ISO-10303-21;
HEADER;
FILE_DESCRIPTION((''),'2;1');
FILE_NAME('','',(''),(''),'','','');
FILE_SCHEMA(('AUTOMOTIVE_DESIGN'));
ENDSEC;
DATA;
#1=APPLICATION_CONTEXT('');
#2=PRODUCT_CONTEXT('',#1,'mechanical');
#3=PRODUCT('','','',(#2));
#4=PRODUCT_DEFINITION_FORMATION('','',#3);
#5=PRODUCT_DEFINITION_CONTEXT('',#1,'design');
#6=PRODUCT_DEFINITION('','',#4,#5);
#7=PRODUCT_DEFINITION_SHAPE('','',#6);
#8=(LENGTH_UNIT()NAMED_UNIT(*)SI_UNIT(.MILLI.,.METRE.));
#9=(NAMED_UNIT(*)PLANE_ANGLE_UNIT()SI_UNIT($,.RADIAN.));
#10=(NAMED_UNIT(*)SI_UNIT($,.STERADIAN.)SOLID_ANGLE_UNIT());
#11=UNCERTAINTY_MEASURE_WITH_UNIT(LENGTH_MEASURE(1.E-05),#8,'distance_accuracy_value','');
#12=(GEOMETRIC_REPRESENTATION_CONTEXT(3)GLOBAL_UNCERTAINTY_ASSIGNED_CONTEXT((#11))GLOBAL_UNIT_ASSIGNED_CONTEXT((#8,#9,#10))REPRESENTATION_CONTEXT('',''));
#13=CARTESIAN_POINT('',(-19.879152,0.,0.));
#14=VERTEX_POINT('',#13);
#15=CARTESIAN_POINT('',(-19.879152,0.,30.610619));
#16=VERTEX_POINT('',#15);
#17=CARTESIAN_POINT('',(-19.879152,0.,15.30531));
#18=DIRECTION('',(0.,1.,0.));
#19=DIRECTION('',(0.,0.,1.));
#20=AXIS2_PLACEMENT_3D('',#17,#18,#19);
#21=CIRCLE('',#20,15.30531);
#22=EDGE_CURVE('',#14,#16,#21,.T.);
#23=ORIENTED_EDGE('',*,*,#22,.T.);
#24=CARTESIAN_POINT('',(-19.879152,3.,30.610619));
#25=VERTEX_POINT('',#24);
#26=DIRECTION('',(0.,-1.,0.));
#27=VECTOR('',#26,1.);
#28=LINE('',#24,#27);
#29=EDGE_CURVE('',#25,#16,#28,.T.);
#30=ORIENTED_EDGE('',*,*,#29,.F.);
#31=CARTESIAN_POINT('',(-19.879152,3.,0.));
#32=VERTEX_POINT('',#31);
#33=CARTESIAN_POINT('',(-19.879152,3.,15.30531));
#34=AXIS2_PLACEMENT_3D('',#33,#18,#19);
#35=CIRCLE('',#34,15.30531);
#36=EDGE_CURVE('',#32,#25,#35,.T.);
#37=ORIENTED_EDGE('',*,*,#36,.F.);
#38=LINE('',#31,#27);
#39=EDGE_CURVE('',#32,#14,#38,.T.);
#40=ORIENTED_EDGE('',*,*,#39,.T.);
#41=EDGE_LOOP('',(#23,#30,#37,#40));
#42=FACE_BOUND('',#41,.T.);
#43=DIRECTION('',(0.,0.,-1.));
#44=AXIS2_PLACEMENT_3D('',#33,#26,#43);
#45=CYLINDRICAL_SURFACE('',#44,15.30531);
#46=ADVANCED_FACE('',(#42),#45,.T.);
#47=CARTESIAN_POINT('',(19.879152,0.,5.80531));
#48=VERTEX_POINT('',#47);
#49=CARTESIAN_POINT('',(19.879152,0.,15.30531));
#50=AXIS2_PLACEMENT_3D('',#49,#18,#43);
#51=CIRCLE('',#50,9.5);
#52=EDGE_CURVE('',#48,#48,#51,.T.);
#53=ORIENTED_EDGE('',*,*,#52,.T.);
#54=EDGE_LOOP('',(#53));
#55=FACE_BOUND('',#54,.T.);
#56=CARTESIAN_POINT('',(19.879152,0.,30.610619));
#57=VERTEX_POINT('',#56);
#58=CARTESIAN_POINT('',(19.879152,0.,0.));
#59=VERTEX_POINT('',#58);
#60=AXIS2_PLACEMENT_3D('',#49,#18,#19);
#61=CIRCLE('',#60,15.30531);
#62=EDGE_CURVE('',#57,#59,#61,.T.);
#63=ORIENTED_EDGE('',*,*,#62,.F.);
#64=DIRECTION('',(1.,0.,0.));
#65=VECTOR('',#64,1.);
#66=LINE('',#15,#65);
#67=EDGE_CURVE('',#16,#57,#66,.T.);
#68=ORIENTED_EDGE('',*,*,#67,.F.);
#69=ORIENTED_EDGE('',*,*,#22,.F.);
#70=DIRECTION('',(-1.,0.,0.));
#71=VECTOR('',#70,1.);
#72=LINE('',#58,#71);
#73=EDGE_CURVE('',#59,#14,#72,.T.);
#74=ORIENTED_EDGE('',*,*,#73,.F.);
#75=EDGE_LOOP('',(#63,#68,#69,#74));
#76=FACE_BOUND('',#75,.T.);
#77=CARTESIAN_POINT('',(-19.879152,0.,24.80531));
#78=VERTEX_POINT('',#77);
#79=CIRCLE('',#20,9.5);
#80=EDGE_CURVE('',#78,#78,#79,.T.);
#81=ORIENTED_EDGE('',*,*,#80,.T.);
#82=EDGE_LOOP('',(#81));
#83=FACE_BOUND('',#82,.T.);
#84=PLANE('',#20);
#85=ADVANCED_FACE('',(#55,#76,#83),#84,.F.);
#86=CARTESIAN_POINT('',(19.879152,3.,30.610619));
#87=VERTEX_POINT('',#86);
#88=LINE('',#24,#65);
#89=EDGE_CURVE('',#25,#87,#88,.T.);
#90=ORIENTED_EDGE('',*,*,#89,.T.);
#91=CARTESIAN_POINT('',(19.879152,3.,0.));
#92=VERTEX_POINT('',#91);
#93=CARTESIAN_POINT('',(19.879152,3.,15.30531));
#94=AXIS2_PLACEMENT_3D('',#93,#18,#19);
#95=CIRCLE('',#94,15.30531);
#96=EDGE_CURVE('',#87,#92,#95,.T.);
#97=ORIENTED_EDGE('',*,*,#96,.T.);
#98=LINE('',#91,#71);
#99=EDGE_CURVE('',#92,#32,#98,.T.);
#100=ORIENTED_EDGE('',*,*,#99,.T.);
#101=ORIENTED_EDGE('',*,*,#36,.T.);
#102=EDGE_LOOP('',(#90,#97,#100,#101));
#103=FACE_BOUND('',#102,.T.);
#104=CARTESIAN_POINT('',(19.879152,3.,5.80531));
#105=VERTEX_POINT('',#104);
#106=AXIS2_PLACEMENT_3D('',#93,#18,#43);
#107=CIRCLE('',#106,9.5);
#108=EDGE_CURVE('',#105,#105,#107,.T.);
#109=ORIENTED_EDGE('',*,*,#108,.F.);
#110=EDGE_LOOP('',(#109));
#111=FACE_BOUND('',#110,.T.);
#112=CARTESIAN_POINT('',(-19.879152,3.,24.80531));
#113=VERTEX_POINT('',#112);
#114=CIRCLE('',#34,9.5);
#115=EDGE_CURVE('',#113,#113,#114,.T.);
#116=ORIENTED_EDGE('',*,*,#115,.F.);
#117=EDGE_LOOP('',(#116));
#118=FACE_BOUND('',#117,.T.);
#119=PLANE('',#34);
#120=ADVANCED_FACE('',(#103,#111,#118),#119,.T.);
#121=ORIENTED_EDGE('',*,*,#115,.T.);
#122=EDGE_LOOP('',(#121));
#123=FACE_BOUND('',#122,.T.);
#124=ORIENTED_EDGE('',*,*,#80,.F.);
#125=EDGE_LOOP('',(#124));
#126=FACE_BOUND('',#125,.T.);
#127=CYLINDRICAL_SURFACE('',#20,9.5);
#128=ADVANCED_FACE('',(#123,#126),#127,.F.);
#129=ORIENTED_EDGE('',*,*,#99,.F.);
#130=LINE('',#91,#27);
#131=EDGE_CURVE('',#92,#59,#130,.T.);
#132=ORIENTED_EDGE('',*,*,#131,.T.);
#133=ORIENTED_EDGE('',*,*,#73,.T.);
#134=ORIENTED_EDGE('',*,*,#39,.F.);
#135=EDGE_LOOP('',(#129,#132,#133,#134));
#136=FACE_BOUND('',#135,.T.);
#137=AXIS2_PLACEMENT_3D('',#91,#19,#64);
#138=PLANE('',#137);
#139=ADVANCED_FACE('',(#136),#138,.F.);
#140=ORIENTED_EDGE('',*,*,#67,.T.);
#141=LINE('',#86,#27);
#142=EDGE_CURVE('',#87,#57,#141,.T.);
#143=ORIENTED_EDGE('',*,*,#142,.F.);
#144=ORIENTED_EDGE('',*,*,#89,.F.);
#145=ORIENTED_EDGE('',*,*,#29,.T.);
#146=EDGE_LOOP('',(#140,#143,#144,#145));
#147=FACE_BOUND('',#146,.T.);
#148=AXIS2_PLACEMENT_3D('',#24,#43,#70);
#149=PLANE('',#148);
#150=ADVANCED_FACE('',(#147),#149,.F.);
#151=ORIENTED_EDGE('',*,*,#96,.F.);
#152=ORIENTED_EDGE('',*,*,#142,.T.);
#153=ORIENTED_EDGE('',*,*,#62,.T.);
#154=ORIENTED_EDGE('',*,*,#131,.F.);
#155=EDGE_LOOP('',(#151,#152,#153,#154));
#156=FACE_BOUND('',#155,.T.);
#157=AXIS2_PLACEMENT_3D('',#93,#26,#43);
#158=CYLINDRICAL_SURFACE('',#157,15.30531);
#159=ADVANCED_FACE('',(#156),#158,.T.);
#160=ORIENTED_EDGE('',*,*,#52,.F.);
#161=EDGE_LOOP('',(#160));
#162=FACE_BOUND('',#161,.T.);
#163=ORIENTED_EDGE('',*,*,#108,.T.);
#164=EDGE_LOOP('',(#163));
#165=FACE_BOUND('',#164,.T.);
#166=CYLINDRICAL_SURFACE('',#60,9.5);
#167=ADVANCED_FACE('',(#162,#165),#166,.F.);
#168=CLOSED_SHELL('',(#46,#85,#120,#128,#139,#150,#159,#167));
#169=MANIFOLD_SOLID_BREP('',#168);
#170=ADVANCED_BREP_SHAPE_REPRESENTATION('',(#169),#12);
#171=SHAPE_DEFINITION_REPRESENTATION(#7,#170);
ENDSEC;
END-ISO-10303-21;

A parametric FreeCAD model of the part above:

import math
import FreeCAD as App
import Part
import Sketcher
from FreeCAD import Vector

doc = App.newDocument("Part")
body = doc.addObject("PartDesign::Body", "Body")

# Sketch on XZ plane
sketch1 = doc.addObject("Sketcher::SketchObject", "Sketch")
body.addObject(sketch1)
sketch1.AttachmentSupport = (doc.XZ_Plane, [""])
sketch1.MapMode = "FlatFace"
sketch1.addGeometry([
    Part.LineSegment(Vector(20, 0, 0), Vector(-20, 0, 0)),
    Part.ArcOfCircle(Part.Circle(Vector(-20, 15, 0), Vector(0, 0, 1), 15), math.radians(90), math.radians(270)),
    Part.LineSegment(Vector(-20, 31, 0), Vector(20, 31, 0)),
    Part.ArcOfCircle(Part.Circle(Vector(20, 15, 0), Vector(0, 0, 1), 15), math.radians(-90), math.radians(90)),
], False)
sketch1.addConstraint([
    Sketcher.Constraint("Tangent", 0, 2, 1, 2),
    Sketcher.Constraint("Tangent", 1, 1, 2, 1),
    Sketcher.Constraint("Tangent", 2, 2, 3, 2),
    Sketcher.Constraint("Tangent", 3, 1, 0, 1),
    Sketcher.Constraint("Horizontal", 0),
    Sketcher.Constraint("Horizontal", 2),
    Sketcher.Constraint("Symmetric", 0, 2, 3, 1, -1, 1),
    Sketcher.Constraint("Radius", 1, 15.30531),
    Sketcher.Constraint("DistanceX", 0, 2, 0, 1, 39.758304),
])
pad1 = doc.addObject("PartDesign::Pad", "Pad")
body.addObject(pad1)
pad1.Profile = sketch1
pad1.Length = 3
pad1.Reversed = True

# Sketch on XZ plane
sketch2 = doc.addObject("Sketcher::SketchObject", "Sketch001")
body.addObject(sketch2)
sketch2.AttachmentSupport = (doc.XZ_Plane, [""])
sketch2.MapMode = "FlatFace"
sketch2.AttachmentOffset = App.Placement(Vector(0, 0, -3), App.Rotation())
sketch2.addGeometry([
    Part.Circle(Vector(-20, 15, 0), Vector(0, 0, 1), 10),
    Part.Circle(Vector(20, 15, 0), Vector(0, 0, 1), 10),
], False)
sketch2.addConstraint([
    Sketcher.Constraint("Equal", 0, 1),
    Sketcher.Constraint("Symmetric", 0, 3, 1, 3, -2),
    Sketcher.Constraint("Diameter", 0, 19.0),
    Sketcher.Constraint("DistanceY", -1, 1, 0, 3, 15.30531),
    Sketcher.Constraint("DistanceX", 0, 3, -1, 1, 19.879152),
])
pocket1 = doc.addObject("PartDesign::Pocket", "Pocket")
body.addObject(pocket1)
pocket1.Profile = sketch2
pocket1.Type = "ThroughAll"
pocket1.Reversed = True

doc.recompute()
